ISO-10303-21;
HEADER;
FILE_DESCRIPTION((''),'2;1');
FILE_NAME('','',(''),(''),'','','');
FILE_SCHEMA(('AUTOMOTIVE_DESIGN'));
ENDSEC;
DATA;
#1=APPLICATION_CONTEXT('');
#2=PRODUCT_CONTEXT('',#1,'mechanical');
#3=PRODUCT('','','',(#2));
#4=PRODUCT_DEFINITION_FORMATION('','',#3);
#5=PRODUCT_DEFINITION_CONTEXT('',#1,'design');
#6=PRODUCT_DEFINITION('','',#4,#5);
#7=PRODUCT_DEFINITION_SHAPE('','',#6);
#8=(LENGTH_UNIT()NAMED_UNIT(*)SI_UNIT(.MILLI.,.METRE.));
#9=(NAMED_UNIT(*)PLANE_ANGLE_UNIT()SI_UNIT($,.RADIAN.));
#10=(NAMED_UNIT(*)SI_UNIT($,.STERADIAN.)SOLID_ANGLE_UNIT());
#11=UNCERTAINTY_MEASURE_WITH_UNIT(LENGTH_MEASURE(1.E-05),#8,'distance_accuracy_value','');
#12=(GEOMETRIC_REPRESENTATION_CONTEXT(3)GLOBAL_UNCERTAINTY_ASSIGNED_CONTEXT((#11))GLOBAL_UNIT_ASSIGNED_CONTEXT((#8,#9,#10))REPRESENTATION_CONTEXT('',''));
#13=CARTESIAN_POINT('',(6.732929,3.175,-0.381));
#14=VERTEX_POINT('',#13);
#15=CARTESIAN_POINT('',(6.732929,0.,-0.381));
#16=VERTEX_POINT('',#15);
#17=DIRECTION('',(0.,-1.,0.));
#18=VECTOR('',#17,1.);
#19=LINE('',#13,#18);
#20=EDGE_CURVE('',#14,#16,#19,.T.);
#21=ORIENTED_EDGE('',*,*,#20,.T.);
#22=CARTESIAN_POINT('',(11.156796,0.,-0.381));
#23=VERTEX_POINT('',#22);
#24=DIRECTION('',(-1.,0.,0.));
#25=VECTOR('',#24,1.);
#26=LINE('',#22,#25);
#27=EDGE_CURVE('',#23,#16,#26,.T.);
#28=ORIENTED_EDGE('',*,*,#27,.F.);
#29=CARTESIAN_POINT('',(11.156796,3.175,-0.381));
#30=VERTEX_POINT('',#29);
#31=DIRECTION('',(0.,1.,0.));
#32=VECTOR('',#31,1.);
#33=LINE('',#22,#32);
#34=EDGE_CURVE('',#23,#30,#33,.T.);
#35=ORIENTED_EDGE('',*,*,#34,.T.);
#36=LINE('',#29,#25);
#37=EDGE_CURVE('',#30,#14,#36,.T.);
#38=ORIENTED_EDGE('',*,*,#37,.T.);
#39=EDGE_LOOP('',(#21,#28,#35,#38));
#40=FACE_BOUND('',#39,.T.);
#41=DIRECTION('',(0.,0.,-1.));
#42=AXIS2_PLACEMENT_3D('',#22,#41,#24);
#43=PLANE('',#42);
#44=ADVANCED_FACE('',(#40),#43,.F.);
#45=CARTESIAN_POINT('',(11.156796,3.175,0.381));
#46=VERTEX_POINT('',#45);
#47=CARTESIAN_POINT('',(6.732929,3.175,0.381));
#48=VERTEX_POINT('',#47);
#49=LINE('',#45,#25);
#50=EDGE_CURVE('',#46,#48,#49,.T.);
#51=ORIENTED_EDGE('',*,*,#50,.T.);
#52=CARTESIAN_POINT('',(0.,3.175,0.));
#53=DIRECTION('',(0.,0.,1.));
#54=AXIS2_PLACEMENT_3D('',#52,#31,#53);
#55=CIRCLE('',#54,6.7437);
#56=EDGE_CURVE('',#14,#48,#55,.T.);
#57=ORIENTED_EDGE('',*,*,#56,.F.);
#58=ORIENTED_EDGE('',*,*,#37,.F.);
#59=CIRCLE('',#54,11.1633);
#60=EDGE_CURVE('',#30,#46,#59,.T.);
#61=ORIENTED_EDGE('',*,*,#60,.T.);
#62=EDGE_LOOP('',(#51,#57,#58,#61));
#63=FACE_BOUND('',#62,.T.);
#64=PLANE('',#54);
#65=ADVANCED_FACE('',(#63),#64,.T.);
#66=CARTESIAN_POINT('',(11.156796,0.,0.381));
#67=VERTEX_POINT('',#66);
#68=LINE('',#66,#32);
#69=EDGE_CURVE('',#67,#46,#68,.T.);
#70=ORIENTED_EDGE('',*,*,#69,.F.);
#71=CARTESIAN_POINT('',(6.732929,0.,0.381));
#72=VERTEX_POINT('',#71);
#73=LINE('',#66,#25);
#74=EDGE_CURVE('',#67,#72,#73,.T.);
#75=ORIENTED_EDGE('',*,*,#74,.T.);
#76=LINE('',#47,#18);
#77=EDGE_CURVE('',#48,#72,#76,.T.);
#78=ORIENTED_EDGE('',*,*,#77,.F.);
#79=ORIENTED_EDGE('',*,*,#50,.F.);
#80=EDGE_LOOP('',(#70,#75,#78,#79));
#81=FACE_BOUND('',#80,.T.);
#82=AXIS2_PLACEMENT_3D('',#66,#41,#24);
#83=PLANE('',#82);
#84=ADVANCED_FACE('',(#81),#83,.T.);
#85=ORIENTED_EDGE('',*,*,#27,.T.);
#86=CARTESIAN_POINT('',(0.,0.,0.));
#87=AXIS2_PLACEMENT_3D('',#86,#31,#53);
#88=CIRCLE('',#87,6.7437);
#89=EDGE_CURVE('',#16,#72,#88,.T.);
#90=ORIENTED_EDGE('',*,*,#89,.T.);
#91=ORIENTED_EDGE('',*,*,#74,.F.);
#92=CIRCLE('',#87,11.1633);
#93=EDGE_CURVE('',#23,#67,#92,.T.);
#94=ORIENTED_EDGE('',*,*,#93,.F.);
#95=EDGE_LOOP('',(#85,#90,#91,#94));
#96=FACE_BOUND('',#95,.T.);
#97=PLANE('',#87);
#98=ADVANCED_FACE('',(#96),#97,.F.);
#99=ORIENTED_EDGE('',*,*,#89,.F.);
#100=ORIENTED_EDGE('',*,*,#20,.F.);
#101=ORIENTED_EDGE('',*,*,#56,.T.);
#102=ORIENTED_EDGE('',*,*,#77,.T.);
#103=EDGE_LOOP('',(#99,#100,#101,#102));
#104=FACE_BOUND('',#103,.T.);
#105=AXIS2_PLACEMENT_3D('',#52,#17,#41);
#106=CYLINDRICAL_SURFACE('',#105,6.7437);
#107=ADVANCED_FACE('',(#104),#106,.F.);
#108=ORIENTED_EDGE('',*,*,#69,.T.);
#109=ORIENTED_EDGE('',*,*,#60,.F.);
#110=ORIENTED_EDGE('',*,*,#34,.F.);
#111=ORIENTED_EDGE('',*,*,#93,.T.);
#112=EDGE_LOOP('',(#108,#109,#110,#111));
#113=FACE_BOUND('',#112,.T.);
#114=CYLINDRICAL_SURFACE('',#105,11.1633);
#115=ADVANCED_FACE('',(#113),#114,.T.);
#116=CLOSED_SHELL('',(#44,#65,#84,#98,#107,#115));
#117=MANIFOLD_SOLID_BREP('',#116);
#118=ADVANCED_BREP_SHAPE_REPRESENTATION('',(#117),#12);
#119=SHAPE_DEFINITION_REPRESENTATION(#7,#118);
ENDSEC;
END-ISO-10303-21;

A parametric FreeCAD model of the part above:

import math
import FreeCAD as App
import Part
import Sketcher
from FreeCAD import Vector
Q = App.Units.Quantity

doc = App.newDocument("Part")
params = doc.addObject("Spreadsheet::Sheet", "Params")
for row, (alias, value) in enumerate([
    ("sketch1_diameter", "0.879 in"),
    ("sketch1_diameter2", "0.531 in"),
    ("pad1_length", "0.125 in"),
    ("sketch2_height", "0.03 in"),
], start=1):
    params.set(f"A{row}", alias)
    params.set(f"B{row}", "=" + value)
    params.setAlias(f"B{row}", alias)

body = doc.addObject("PartDesign::Body", "Body")

# Sketch on XZ plane
sketch1 = body.newObject("Sketcher::SketchObject", "Sketch")
sketch1.AttachmentSupport = (doc.getObject("XZ_Plane"), [""])
sketch1.MapMode = "FlatFace"
sketch1.addGeometry([
    Part.Circle(Vector(0, 0, 0), Vector(0, 0, 1), 11),
    Part.Circle(Vector(0, 0, 0), Vector(0, 0, 1), 7),
], False)
sketch1.addConstraint([
    Sketcher.Constraint("Coincident", 0, 3, -1, 1),
    Sketcher.Constraint("Coincident", 1, 3, -1, 1),
    Sketcher.Constraint("Diameter", 0, Q("0.879 in")),
    Sketcher.Constraint("Diameter", 1, Q("0.531 in")),
])
sketch1.setExpression("Constraints[2]", "Params.sketch1_diameter")
sketch1.setExpression("Constraints[3]", "Params.sketch1_diameter2")
pad1 = body.newObject("PartDesign::Pad", "Pad")
pad1.Profile = sketch1
pad1.setExpression("Length", "Params.pad1_length")
pad1.Reversed = True

# Sketch on XZ plane
sketch2 = body.newObject("Sketcher::SketchObject", "Sketch001")
sketch2.AttachmentSupport = (doc.getObject("XZ_Plane"), [""])
sketch2.MapMode = "FlatFace"
sketch2.AttachmentOffset = App.Placement(Vector(0, 0, -0.125 * 25.4), App.Rotation())
sketch2.addGeometry([
    Part.LineSegment(Vector(11.2, -0.4, 0), Vector(0, -0.4, 0)),
    Part.LineSegment(Vector(0, -0.4, 0), Vector(0, 0.4, 0)),
    Part.LineSegment(Vector(0, 0.4, 0), Vector(11.2, 0.4, 0)),
    Part.ArcOfCircle(Part.Circle(Vector(0, 0, 0), Vector(0, 0, 1), 11.2), math.radians(-1.96), math.radians(1.96)),
], False)
sketch2.addConstraint([
    Sketcher.Constraint("Coincident", 0, 2, 1, 1),
    Sketcher.Constraint("Coincident", 1, 2, 2, 1),
    Sketcher.Constraint("Coincident", 2, 2, 3, 2),
    Sketcher.Constraint("Coincident", 3, 1, 0, 1),
    Sketcher.Constraint("Horizontal", 0),
    Sketcher.Constraint("Vertical", 1),
    Sketcher.Constraint("Horizontal", 2),
    Sketcher.Constraint("Coincident", 3, 3, -1, 1),
    Sketcher.Constraint("Symmetric", 0, 2, 1, 2, -1, 1),
    Sketcher.Constraint("DistanceY", 1, 1, 1, 2, Q("0.03 in")),
    Sketcher.Constraint("Radius", 3, Q("0.4395 in")),
])
sketch2.setExpression("Constraints[9]", "Params.sketch2_height")
pocket1 = body.newObject("PartDesign::Pocket", "Pocket")
pocket1.Profile = sketch2
pocket1.Type = "ThroughAll"
pocket1.Reversed = True

doc.recompute()
